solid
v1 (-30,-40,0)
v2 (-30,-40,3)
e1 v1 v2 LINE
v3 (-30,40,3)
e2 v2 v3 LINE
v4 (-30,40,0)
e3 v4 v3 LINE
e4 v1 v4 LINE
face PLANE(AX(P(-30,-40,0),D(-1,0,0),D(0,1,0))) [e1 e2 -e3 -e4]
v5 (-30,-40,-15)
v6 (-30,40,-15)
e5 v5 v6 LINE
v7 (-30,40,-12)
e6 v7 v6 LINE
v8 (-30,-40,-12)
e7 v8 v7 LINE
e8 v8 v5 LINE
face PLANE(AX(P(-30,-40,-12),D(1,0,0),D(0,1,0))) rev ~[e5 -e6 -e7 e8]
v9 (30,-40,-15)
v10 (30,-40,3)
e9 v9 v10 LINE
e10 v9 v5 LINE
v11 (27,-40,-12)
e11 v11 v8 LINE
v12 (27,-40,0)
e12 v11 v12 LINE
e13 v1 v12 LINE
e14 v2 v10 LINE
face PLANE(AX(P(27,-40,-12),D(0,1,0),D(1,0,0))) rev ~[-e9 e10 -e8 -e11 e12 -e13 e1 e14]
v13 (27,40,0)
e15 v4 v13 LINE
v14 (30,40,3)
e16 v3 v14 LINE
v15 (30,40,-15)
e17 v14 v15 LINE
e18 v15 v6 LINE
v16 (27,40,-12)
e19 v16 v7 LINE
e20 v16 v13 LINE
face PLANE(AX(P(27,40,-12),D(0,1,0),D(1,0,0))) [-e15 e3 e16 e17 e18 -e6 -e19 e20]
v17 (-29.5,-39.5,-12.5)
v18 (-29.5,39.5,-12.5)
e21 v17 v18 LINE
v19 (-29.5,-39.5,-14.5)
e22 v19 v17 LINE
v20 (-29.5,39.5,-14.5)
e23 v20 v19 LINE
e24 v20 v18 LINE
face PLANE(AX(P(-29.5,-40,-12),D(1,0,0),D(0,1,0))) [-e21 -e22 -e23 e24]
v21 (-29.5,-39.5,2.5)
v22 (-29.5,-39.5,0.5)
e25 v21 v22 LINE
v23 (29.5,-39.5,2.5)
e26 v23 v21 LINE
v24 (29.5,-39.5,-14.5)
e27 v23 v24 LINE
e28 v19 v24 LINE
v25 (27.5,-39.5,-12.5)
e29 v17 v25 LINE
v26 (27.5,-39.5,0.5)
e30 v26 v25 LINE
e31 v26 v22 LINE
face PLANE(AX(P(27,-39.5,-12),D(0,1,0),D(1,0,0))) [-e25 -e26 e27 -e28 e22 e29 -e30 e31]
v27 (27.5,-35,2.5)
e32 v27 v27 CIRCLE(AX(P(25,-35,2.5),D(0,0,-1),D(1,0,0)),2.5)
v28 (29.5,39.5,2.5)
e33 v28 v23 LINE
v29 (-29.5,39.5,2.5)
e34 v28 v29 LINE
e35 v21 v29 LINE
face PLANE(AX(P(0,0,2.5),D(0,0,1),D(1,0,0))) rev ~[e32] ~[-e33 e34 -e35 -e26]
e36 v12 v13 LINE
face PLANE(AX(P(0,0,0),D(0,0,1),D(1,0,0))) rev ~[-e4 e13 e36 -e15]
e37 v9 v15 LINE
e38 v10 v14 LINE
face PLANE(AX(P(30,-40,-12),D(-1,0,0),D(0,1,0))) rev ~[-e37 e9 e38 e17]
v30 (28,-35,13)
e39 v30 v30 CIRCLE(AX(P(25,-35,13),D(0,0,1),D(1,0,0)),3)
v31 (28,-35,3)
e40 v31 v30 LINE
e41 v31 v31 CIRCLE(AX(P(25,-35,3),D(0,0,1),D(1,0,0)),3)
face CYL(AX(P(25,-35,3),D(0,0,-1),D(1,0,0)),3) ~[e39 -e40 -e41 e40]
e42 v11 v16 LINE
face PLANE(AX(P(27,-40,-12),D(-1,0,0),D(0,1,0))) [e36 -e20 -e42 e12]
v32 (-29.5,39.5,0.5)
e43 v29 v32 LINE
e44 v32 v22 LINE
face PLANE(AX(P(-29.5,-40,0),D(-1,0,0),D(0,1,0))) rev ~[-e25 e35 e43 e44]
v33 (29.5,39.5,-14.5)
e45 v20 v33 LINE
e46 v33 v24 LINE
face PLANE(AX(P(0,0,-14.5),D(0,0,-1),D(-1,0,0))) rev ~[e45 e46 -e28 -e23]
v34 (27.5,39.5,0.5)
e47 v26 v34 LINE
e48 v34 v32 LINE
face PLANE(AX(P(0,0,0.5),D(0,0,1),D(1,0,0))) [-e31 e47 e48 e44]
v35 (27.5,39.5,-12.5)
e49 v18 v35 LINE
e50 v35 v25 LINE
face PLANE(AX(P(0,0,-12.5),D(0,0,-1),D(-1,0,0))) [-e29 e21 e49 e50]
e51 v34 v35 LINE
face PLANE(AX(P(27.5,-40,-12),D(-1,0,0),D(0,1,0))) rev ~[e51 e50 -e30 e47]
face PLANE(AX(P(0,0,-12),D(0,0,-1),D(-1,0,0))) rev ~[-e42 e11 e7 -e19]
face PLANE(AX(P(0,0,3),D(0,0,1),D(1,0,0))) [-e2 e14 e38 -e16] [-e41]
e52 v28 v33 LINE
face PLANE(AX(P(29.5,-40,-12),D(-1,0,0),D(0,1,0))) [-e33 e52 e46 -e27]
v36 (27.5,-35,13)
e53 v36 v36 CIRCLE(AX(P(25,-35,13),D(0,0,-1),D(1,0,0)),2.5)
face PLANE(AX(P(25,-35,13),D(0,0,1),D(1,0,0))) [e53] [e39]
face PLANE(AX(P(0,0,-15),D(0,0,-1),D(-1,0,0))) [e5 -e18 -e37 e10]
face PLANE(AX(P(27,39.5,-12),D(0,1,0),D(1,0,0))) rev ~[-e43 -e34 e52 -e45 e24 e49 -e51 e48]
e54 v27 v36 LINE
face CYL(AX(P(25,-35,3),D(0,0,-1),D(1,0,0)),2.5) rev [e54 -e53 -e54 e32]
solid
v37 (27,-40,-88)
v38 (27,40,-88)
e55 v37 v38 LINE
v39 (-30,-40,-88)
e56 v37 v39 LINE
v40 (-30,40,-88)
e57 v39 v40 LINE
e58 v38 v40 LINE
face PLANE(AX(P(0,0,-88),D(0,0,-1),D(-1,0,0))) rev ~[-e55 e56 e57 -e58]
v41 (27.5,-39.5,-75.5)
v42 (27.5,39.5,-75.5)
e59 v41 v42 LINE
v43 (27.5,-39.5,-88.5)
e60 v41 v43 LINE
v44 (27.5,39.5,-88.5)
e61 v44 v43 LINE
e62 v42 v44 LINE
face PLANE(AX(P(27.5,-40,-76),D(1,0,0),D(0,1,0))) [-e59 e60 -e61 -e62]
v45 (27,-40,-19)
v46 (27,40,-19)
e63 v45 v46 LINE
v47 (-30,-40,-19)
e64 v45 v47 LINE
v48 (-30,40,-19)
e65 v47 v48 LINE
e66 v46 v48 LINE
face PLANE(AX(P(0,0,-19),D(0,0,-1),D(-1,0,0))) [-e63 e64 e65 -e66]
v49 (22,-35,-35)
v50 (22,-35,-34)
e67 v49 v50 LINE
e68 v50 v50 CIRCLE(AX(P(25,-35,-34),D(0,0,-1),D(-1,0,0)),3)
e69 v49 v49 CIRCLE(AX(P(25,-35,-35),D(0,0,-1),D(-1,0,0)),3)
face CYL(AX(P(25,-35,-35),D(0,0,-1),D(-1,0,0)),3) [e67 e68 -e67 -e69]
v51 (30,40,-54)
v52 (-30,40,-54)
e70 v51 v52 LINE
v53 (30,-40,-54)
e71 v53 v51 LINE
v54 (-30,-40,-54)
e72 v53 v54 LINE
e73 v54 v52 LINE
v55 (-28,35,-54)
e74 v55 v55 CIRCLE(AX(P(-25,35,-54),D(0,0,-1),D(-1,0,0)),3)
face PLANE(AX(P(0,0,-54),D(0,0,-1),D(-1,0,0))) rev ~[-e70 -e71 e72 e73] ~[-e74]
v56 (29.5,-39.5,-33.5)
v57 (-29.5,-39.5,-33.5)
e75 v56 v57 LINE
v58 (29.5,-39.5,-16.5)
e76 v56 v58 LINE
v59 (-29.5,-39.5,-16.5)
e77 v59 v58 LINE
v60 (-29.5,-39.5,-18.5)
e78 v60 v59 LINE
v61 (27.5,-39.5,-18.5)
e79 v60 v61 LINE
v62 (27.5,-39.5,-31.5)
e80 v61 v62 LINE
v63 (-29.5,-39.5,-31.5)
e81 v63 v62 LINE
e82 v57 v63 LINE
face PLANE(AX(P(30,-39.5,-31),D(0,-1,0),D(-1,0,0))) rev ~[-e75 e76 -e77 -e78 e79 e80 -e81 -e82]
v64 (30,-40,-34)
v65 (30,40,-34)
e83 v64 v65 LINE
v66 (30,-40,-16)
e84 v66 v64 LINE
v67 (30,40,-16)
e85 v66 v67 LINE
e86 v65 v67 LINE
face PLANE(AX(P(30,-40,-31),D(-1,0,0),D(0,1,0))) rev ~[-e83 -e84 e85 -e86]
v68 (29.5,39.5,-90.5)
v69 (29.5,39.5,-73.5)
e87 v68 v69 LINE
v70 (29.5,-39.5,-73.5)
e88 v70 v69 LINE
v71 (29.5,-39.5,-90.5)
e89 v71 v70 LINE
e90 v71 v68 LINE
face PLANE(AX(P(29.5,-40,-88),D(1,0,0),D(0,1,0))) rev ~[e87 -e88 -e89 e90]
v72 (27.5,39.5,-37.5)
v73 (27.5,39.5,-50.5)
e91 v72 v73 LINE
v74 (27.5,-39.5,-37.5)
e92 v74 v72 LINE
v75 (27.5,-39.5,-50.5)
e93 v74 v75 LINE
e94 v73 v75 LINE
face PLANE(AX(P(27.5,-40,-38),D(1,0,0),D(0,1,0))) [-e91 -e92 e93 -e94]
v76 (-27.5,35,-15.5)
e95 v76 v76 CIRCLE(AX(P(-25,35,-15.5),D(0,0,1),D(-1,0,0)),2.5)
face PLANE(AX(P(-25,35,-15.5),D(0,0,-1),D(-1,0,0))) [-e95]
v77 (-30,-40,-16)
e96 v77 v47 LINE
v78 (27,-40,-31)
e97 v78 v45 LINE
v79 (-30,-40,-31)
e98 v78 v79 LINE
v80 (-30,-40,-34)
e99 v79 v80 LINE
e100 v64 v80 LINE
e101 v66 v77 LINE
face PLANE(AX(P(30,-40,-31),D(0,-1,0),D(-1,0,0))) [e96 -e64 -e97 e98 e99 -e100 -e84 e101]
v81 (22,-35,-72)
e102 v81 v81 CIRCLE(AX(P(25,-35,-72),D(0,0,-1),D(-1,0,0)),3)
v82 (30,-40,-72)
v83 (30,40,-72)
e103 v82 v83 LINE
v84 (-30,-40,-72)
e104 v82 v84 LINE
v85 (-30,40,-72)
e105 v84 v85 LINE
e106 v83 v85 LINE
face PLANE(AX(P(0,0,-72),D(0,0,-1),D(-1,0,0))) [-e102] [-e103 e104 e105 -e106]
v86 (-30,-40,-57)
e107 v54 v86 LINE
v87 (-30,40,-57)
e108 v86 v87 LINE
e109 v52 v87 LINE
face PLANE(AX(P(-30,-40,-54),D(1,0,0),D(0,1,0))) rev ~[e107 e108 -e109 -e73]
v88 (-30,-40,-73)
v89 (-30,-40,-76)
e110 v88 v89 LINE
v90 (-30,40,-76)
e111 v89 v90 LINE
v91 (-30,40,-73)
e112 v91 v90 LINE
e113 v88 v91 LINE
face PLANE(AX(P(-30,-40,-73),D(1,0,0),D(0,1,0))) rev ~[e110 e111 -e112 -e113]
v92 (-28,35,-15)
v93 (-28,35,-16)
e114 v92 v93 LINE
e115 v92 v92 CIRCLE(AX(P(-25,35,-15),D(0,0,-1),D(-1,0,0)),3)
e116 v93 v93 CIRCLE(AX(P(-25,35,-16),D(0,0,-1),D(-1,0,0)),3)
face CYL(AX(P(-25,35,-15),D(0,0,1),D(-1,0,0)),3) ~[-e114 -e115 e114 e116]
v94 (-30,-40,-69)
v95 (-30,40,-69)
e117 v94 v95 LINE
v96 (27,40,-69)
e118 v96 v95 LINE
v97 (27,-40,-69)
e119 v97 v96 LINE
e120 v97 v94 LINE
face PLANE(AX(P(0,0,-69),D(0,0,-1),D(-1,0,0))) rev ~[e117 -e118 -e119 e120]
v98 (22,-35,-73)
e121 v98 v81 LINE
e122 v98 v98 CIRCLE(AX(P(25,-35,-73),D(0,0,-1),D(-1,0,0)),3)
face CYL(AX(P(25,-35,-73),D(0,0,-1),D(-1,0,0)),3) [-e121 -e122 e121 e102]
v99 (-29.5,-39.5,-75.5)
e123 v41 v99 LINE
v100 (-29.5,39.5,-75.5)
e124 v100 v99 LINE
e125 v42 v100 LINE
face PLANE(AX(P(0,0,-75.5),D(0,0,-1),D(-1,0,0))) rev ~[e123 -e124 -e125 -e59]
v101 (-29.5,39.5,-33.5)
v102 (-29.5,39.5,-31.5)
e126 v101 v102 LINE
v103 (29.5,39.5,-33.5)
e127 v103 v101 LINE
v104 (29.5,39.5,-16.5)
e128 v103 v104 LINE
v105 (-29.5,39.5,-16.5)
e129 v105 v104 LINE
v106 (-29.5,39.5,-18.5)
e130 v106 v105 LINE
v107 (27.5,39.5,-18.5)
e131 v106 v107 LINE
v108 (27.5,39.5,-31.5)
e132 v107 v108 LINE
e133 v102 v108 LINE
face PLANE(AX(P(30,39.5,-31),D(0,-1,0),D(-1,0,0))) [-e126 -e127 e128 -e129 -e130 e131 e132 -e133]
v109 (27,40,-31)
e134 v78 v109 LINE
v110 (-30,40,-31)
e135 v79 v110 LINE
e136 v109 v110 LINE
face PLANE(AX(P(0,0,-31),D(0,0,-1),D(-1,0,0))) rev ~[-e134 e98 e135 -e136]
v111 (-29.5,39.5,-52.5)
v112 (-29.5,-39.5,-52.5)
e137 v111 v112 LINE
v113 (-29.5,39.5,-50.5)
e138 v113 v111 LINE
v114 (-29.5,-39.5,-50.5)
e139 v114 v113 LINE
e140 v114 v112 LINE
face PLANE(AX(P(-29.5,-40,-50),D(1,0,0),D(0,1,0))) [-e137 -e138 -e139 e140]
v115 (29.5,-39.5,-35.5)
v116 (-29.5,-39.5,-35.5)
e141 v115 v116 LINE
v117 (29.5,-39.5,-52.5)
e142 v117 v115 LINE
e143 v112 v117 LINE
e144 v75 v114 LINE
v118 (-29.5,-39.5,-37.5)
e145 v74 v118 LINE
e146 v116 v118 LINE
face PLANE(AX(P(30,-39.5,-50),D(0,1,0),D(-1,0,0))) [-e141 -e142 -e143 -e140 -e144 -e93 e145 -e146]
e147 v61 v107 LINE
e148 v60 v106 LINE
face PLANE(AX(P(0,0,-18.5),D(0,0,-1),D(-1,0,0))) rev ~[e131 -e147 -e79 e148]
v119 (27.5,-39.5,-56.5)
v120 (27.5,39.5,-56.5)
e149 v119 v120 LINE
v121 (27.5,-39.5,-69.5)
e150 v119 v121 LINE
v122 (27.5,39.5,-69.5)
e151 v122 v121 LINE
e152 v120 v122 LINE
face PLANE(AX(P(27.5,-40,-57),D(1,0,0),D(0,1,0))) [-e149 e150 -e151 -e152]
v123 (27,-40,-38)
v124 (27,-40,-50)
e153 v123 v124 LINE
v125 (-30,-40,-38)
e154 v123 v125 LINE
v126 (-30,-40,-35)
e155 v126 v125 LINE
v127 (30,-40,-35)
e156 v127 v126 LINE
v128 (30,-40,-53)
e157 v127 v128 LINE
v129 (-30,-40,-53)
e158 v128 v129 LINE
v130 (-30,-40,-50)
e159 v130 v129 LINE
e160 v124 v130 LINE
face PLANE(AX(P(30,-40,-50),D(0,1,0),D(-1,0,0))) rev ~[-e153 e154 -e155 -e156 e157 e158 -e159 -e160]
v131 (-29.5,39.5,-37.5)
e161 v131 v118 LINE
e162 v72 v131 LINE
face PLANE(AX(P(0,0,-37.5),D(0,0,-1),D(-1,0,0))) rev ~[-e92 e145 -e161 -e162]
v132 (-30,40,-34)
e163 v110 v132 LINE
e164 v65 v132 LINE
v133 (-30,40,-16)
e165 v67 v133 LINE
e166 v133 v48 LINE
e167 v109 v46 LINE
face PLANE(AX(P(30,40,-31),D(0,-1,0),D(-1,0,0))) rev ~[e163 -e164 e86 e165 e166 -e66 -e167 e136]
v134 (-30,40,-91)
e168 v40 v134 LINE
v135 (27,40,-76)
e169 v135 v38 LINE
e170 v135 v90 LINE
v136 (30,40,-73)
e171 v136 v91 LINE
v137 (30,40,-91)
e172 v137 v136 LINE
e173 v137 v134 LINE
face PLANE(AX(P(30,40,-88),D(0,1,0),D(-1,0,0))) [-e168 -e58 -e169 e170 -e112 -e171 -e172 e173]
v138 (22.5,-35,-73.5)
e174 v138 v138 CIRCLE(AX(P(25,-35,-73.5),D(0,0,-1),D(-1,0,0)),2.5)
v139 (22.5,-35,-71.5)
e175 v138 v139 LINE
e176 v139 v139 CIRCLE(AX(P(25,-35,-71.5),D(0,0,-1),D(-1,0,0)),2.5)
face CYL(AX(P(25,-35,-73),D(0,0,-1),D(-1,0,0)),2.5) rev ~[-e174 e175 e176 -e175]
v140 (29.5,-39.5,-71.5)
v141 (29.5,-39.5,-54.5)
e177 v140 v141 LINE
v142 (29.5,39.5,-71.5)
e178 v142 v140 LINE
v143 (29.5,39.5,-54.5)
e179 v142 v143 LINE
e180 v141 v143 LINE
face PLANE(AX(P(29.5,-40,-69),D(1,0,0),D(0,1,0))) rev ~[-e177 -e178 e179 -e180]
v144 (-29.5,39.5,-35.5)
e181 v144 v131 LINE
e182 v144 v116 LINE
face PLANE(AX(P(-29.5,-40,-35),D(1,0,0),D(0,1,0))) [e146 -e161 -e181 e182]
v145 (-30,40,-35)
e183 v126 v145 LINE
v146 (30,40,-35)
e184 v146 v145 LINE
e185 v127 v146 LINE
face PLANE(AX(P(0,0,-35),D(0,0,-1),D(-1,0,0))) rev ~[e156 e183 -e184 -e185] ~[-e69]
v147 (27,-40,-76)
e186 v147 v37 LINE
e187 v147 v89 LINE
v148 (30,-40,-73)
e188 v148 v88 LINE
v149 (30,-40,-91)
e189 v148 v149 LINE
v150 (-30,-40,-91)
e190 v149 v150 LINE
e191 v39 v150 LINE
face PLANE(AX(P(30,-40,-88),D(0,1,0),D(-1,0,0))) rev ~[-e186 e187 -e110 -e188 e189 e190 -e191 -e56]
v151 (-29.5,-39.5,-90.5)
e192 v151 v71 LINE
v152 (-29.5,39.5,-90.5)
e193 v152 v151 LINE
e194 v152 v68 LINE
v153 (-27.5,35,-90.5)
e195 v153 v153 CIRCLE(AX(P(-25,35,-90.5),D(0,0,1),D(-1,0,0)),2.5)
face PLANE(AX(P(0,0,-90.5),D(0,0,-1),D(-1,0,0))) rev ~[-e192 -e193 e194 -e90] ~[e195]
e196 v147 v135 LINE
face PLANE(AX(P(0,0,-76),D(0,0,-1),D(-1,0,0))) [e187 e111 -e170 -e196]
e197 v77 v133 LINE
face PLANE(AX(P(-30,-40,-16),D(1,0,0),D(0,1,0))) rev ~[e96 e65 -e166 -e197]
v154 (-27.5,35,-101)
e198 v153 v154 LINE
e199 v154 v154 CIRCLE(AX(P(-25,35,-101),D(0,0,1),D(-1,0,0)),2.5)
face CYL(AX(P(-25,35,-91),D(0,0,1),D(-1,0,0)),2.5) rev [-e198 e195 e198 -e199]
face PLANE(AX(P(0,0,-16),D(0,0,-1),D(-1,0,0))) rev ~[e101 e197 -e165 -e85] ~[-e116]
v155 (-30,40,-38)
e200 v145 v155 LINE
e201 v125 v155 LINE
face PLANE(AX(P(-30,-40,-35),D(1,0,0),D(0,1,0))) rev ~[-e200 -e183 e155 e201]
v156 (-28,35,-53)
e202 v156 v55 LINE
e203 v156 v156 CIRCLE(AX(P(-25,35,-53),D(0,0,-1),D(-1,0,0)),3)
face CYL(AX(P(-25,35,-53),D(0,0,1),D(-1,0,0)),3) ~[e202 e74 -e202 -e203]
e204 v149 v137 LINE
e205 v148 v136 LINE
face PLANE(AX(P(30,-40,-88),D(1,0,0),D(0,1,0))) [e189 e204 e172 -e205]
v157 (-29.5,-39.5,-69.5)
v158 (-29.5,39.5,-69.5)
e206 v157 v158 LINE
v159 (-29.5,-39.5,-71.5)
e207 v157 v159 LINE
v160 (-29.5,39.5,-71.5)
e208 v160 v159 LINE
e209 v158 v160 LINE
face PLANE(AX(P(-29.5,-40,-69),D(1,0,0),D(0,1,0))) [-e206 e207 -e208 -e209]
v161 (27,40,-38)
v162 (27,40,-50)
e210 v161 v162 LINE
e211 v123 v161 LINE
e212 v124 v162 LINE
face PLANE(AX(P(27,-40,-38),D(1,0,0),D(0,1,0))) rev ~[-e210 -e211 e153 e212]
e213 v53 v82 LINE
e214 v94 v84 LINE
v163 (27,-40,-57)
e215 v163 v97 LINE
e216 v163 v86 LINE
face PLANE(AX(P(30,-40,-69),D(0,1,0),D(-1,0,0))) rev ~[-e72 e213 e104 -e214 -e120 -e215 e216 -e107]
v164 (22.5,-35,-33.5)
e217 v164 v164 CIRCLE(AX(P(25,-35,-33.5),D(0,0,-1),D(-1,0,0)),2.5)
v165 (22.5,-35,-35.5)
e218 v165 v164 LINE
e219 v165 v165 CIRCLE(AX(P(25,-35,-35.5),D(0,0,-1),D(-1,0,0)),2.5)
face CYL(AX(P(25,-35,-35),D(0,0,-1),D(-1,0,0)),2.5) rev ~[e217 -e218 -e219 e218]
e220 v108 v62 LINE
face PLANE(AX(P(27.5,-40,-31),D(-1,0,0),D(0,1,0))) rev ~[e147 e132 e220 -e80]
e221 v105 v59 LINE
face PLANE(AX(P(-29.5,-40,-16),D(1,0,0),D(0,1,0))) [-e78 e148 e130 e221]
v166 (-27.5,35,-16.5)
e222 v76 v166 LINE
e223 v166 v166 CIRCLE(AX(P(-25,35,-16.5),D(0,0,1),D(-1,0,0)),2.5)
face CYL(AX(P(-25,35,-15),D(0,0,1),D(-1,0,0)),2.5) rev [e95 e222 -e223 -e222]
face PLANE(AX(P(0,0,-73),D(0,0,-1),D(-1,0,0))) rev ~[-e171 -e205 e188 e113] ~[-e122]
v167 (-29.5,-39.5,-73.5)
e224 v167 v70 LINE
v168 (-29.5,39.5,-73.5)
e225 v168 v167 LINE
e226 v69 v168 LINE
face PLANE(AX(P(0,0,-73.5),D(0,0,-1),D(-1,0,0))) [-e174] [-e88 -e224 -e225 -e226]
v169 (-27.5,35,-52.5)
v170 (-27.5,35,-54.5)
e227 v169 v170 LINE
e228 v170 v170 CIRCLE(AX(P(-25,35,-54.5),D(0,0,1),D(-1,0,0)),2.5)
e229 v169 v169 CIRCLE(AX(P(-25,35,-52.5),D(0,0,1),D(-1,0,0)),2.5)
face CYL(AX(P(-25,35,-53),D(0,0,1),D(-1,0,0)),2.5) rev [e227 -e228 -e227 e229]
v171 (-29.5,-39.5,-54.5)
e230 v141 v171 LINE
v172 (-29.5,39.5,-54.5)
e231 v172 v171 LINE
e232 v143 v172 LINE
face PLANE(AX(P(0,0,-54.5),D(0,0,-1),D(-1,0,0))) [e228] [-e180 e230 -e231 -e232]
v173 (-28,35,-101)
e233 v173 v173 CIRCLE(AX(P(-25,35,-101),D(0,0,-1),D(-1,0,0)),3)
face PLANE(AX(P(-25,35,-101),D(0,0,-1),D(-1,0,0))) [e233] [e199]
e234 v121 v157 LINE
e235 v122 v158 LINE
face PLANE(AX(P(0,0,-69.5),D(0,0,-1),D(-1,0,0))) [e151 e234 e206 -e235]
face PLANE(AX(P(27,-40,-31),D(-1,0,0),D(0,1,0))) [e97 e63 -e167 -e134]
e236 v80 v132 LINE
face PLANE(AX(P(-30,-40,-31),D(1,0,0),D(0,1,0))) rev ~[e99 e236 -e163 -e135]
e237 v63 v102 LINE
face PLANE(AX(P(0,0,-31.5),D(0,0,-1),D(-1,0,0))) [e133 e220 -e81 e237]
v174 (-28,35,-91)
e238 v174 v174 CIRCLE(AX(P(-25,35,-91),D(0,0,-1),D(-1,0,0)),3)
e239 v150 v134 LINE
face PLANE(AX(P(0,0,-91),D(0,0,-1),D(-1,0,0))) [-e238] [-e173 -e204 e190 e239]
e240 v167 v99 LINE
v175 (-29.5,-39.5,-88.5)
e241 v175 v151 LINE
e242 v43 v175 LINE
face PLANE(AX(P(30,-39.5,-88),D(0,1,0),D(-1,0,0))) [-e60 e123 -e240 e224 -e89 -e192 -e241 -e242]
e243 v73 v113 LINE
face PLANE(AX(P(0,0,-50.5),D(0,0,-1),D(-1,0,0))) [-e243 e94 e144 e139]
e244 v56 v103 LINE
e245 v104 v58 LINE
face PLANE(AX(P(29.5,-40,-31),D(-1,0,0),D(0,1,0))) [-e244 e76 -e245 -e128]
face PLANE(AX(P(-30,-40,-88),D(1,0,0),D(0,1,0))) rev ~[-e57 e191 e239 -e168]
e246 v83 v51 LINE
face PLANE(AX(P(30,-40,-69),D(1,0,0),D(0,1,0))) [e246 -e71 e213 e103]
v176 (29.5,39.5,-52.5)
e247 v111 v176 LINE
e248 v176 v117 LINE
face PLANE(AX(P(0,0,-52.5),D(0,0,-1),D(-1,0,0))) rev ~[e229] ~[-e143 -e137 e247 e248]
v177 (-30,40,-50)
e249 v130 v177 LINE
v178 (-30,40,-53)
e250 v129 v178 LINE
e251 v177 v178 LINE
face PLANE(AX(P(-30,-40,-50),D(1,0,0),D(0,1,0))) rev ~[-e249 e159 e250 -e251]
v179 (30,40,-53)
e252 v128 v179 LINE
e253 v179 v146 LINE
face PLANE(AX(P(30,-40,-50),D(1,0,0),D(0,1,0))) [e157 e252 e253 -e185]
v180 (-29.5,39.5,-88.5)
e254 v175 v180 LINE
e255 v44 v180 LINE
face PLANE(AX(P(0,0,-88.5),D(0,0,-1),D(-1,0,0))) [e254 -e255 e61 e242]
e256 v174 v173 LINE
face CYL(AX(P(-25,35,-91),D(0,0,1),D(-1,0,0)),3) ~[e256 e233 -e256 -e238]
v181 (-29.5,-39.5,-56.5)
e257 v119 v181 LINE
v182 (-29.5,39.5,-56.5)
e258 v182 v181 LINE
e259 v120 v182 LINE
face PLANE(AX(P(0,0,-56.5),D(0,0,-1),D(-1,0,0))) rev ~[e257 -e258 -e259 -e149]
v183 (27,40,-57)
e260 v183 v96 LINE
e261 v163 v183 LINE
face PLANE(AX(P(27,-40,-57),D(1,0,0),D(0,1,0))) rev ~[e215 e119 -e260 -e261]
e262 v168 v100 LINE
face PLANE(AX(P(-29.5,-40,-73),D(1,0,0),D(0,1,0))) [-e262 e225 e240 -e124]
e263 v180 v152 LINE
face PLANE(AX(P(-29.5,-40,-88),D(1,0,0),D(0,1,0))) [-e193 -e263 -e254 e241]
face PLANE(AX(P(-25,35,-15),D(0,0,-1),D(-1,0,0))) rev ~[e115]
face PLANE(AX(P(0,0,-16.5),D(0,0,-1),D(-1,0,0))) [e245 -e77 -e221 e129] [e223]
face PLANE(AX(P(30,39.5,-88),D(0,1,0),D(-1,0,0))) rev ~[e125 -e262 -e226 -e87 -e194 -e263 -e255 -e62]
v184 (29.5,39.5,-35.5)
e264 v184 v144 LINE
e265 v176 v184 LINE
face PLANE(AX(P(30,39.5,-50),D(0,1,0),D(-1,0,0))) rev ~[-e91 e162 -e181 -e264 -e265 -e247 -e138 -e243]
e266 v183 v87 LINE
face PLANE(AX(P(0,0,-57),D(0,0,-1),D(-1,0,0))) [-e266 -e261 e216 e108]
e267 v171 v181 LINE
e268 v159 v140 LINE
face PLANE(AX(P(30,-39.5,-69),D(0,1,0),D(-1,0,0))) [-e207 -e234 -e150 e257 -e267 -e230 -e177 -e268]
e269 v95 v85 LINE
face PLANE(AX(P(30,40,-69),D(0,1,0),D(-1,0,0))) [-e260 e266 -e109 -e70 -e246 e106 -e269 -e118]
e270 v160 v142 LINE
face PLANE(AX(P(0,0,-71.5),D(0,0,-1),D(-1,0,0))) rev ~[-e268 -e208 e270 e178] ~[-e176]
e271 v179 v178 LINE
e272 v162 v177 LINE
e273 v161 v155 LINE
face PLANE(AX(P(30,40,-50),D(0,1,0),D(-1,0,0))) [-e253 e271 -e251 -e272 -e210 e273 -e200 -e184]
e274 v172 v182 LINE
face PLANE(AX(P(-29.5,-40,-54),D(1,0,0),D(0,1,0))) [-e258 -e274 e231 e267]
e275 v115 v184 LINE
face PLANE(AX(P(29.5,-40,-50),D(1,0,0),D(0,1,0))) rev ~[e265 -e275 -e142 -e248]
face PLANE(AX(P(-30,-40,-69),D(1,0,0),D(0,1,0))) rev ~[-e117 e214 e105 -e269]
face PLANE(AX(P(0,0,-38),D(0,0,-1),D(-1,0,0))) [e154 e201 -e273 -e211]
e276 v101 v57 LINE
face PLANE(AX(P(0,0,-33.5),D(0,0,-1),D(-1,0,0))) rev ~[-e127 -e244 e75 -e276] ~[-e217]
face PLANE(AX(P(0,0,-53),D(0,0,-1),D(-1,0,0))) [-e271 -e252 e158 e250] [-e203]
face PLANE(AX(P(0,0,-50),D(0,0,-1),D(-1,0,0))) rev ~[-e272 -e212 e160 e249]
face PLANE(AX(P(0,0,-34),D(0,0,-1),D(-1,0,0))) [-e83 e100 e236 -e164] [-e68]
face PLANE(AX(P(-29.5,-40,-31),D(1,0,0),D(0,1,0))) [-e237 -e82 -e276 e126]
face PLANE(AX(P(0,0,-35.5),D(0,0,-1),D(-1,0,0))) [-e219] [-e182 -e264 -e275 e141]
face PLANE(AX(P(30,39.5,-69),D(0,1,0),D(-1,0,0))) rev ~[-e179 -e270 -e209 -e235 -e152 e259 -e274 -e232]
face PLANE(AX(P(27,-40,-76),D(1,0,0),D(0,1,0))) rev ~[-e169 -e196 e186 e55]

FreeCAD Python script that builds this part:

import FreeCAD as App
import Part
import Sketcher
from FreeCAD import Vector
Q = App.Units.Quantity


def faces_at(feature, points):
    """Names of the faces that lie closest to the given points."""
    faces = feature.Shape.Faces
    near = lambda p: min(range(len(faces)), key=lambda i: faces[i].distToShape(Part.Vertex(*p))[0])
    return sorted({f"Face{near(p) + 1}" for p in points})


def add_polygon(sketch, points):
    """Adds a closed chain of lines whose ends are joined by coincident constraints."""
    first, n = sketch.GeometryCount, len(points)
    for a, b in zip(points, points[1:] + points[:1]):
        sketch.addGeometry(Part.LineSegment(App.Vector(*a, 0), App.Vector(*b, 0)), False)
    for i in range(n):
        sketch.addConstraint(Sketcher.Constraint("Coincident", first + i, 2, first + (i + 1) % n, 1))

doc = App.newDocument("Part")
params = doc.addObject("Spreadsheet::Sheet", "Params")
for row, (alias, value) in enumerate([
    ("sketch1_width", "60 mm"),
    ("sketch1_height", "80 mm"),
    ("pad1_length", "3 mm"),
    ("sketch2_diameter", "6 mm"),
    ("pad2_length", "10 mm"),
    ("sketch3_width", "60 mm"),
    ("sketch3_height", "80 mm"),
    ("pad3_length", "3 mm"),
    ("sketch4_diameter", "6 mm"),
    ("pad4_length", "1 mm"),
    ("sketch5_width", "60 mm"),
    ("sketch5_height", "80 mm"),
    ("pad5_length", "3 mm"),
    ("sketch6_width", "3 mm"),
    ("sketch6_height", "80 mm"),
    ("pad6_length", "12 mm"),
    ("thickness_wall", "0.5 mm"),
    ("sketch7_width", "60 mm"),
    ("sketch7_height", "80 mm"),
    ("pad7_length", "3 mm"),
    ("sketch8_width", "3 mm"),
    ("sketch8_height", "80 mm"),
    ("pad8_length", "12 mm"),
    ("sketch9_diameter", "6 mm"),
    ("pad9_length", "1 mm"),
    ("sketch10_width", "60 mm"),
    ("sketch10_height", "80 mm"),
    ("pad10_length", "3 mm"),
    ("sketch11_width", "3 mm"),
    ("sketch11_height", "80 mm"),
    ("pad11_length", "12 mm"),
    ("sketch12_width", "60 mm"),
    ("sketch12_height", "80 mm"),
    ("pad12_length", "3 mm"),
    ("sketch13_diameter", "6 mm"),
    ("pad13_length", "1 mm"),
    ("sketch14_width", "60 mm"),
    ("sketch14_height", "80 mm"),
    ("pad14_length", "3 mm"),
    ("sketch15_width", "3 mm"),
    ("sketch15_height", "80 mm"),
    ("pad15_length", "12 mm"),
    ("sketch16_width", "60 mm"),
    ("sketch16_height", "80 mm"),
    ("pad16_length", "3 mm"),
    ("sketch17_diameter", "6 mm"),
    ("pad17_length", "1 mm"),
    ("sketch18_width", "60 mm"),
    ("sketch18_height", "80 mm"),
    ("pad18_length", "3 mm"),
    ("sketch19_width", "3 mm"),
    ("sketch19_height", "80 mm"),
    ("pad19_length", "12 mm"),
    ("sketch20_width", "60 mm"),
    ("sketch20_height", "80 mm"),
    ("pad20_length", "3 mm"),
    ("sketch21_diameter", "6 mm"),
    ("pad21_length", "10 mm"),
    ("thickness2_wall", "0.5 mm"),
], start=1):
    params.set(f"A{row}", alias)
    params.set(f"B{row}", "=" + value)
    params.setAlias(f"B{row}", alias)

body = doc.addObject("PartDesign::Body", "Body")

# Sketch on XY plane
sketch1 = body.newObject("Sketcher::SketchObject", "Sketch")
sketch1.AttachmentSupport = (doc.getObject("XY_Plane"), [""])
sketch1.MapMode = "FlatFace"
add_polygon(sketch1, [(-30, 40), (-30, -40), (30, -40), (30, 40)])  # lines 0-3
sketch1.addConstraint([
    Sketcher.Constraint("Vertical", 0),
    Sketcher.Constraint("Horizontal", 1),
    Sketcher.Constraint("Vertical", 2),
    Sketcher.Constraint("Horizontal", 3),
    Sketcher.Constraint("Symmetric", 0, 2, 2, 2, -1, 1),
    Sketcher.Constraint("DistanceX", 1, 1, 1, 2, Q("60 mm")),
    Sketcher.Constraint("DistanceY", 0, 2, 0, 1, Q("80 mm")),
])
sketch1.setExpression("Constraints[9]", "Params.sketch1_width")
sketch1.setExpression("Constraints[10]", "Params.sketch1_height")
pad1 = body.newObject("PartDesign::Pad", "Pad")
pad1.Profile = sketch1
pad1.setExpression("Length", "Params.pad1_length")

# Sketch on XY plane
sketch2 = body.newObject("Sketcher::SketchObject", "Sketch001")
sketch2.AttachmentSupport = (doc.getObject("XY_Plane"), [""])
sketch2.MapMode = "FlatFace"
sketch2.AttachmentOffset = App.Placement(Vector(0, 0, 3), App.Rotation())
sketch2.addGeometry(Part.Circle(Vector(25, -35, 0), Vector(0, 0, 1), 3), False)
sketch2.addConstraint([
    Sketcher.Constraint("Diameter", 0, Q("6 mm")),
    Sketcher.Constraint("DistanceX", -1, 1, 0, 3, Q("25 mm")),
    Sketcher.Constraint("DistanceY", 0, 3, -1, 1, Q("35 mm")),
])
sketch2.setExpression("Constraints[0]", "Params.sketch2_diameter")
pad2 = body.newObject("PartDesign::Pad", "Pad001")
pad2.Profile = sketch2
pad2.setExpression("Length", "Params.pad2_length")
body2 = doc.addObject("PartDesign::Body", "Body001")

# Sketch on XY plane
sketch3 = body2.newObject("Sketcher::SketchObject", "Sketch002")
sketch3.AttachmentSupport = (doc.getObject("XY_Plane001"), [""])
sketch3.MapMode = "FlatFace"
sketch3.AttachmentOffset = App.Placement(Vector(0, 0, -12), App.Rotation())
add_polygon(sketch3, [(30, 40), (30, -40), (-30, -40), (-30, 40)])  # lines 0-3
sketch3.addConstraint([
    Sketcher.Constraint("Vertical", 0),
    Sketcher.Constraint("Horizontal", 1),
    Sketcher.Constraint("Vertical", 2),
    Sketcher.Constraint("Horizontal", 3),
    Sketcher.Constraint("Symmetric", 0, 2, 2, 2, -1, 1),
    Sketcher.Constraint("DistanceX", 1, 2, 1, 1, Q("60 mm")),
    Sketcher.Constraint("DistanceY", 0, 2, 0, 1, Q("80 mm")),
])
sketch3.setExpression("Constraints[9]", "Params.sketch3_width")
sketch3.setExpression("Constraints[10]", "Params.sketch3_height")
pad3 = body2.newObject("PartDesign::Pad", "Pad002")
pad3.Profile = sketch3
pad3.setExpression("Length", "Params.pad3_length")
pad3.Reversed = True
body3 = doc.addObject("PartDesign::Body", "Body002")

# Sketch on XY plane
sketch4 = body3.newObject("Sketcher::SketchObject", "Sketch003")
sketch4.AttachmentSupport = (doc.getObject("XY_Plane002"), [""])
sketch4.MapMode = "FlatFace"
sketch4.AttachmentOffset = App.Placement(Vector(0, 0, -15), App.Rotation())
sketch4.addGeometry(Part.Circle(Vector(-25, 35, 0), Vector(0, 0, 1), 3), False)
sketch4.addConstraint([
    Sketcher.Constraint("Diameter", 0, Q("6 mm")),
    Sketcher.Constraint("DistanceX", 0, 3, -1, 1, Q("25 mm")),
    Sketcher.Constraint("DistanceY", -1, 1, 0, 3, Q("35 mm")),
])
sketch4.setExpression("Constraints[0]", "Params.sketch4_diameter")
pad4 = body3.newObject("PartDesign::Pad", "Pad003")
pad4.Profile = sketch4
pad4.setExpression("Length", "Params.pad4_length")
pad4.Reversed = True

# Sketch on XY plane
sketch5 = body3.newObject("Sketcher::SketchObject", "Sketch004")
sketch5.AttachmentSupport = (doc.getObject("XY_Plane002"), [""])
sketch5.MapMode = "FlatFace"
sketch5.AttachmentOffset = App.Placement(Vector(0, 0, -16), App.Rotation())
add_polygon(sketch5, [(30, 40), (30, -40), (-30, -40), (-30, 40)])  # lines 0-3
sketch5.addConstraint([
    Sketcher.Constraint("Vertical", 0),
    Sketcher.Constraint("Horizontal", 1),
    Sketcher.Constraint("Vertical", 2),
    Sketcher.Constraint("Horizontal", 3),
    Sketcher.Constraint("Symmetric", 0, 2, 2, 2, -1, 1),
    Sketcher.Constraint("DistanceX", 1, 2, 1, 1, Q("60 mm")),
    Sketcher.Constraint("DistanceY", 0, 2, 0, 1, Q("80 mm")),
])
sketch5.setExpression("Constraints[9]", "Params.sketch5_width")
sketch5.setExpression("Constraints[10]", "Params.sketch5_height")
pad5 = body3.newObject("PartDesign::Pad", "Pad004")
pad5.Profile = sketch5
pad5.setExpression("Length", "Params.pad5_length")
pad5.Reversed = True
body.AllowCompound = True
doc.recompute()

boolean = body.newObject("PartDesign::Boolean", "Boolean")
boolean.Type = "Fuse"
boolean.addObjects([body2])

# Sketch on XY plane
sketch6 = body.newObject("Sketcher::SketchObject", "Sketch005")
sketch6.AttachmentSupport = (doc.getObject("XY_Plane"), [""])
sketch6.MapMode = "FlatFace"
sketch6.AttachmentOffset = App.Placement(Vector(0, 0, -12), App.Rotation())
add_polygon(sketch6, [(27, 40), (27, -40), (30, -40), (30, 40)])  # lines 0-3
sketch6.addConstraint([
    Sketcher.Constraint("Vertical", 0),
    Sketcher.Constraint("Horizontal", 1),
    Sketcher.Constraint("Vertical", 2),
    Sketcher.Constraint("Horizontal", 3),
    Sketcher.Constraint("DistanceX", 1, 1, 1, 2, Q("3 mm")),
    Sketcher.Constraint("DistanceY", 0, 2, 0, 1, Q("80 mm")),
    Sketcher.Constraint("DistanceX", -1, 1, 0, 2, Q("27 mm")),
    Sketcher.Constraint("DistanceY", 0, 2, -1, 1, Q("40 mm")),
])
sketch6.setExpression("Constraints[8]", "Params.sketch6_width")
sketch6.setExpression("Constraints[9]", "Params.sketch6_height")
pad6 = body.newObject("PartDesign::Pad", "Pad005")
pad6.Profile = sketch6
pad6.setExpression("Length", "Params.pad6_length")
doc.recompute()

thickness = body.newObject("PartDesign::Thickness", "Thickness")
thickness.Base = (pad6, faces_at(pad6, [(25, -35, 13)]))
thickness.setExpression("Value", "Params.thickness_wall")
thickness.Reversed = True
thickness.Join = "Intersection"
body4 = doc.addObject("PartDesign::Body", "Body003")

# Sketch on XY plane
sketch7 = body4.newObject("Sketcher::SketchObject", "Sketch006")
sketch7.AttachmentSupport = (doc.getObject("XY_Plane003"), [""])
sketch7.MapMode = "FlatFace"
sketch7.AttachmentOffset = App.Placement(Vector(0, 0, -31), App.Rotation())
add_polygon(sketch7, [(30, 40), (30, -40), (-30, -40), (-30, 40)])  # lines 0-3
sketch7.addConstraint([
    Sketcher.Constraint("Vertical", 0),
    Sketcher.Constraint("Horizontal", 1),
    Sketcher.Constraint("Vertical", 2),
    Sketcher.Constraint("Horizontal", 3),
    Sketcher.Constraint("Symmetric", 0, 2, 2, 2, -1, 1),
    Sketcher.Constraint("DistanceX", 1, 2, 1, 1, Q("60 mm")),
    Sketcher.Constraint("DistanceY", 0, 2, 0, 1, Q("80 mm")),
])
sketch7.setExpression("Constraints[9]", "Params.sketch7_width")
sketch7.setExpression("Constraints[10]", "Params.sketch7_height")
pad7 = body4.newObject("PartDesign::Pad", "Pad006")
pad7.Profile = sketch7
pad7.setExpression("Length", "Params.pad7_length")
pad7.Reversed = True
body3.AllowCompound = True
doc.recompute()

boolean2 = body3.newObject("PartDesign::Boolean", "Boolean001")
boolean2.Type = "Fuse"
boolean2.addObjects([body4])

# Sketch on XY plane
sketch8 = body3.newObject("Sketcher::SketchObject", "Sketch007")
sketch8.AttachmentSupport = (doc.getObject("XY_Plane002"), [""])
sketch8.MapMode = "FlatFace"
sketch8.AttachmentOffset = App.Placement(Vector(0, 0, -31), App.Rotation())
add_polygon(sketch8, [(30, 40), (30, -40), (27, -40), (27, 40)])  # lines 0-3
sketch8.addConstraint([
    Sketcher.Constraint("Vertical", 0),
    Sketcher.Constraint("Horizontal", 1),
    Sketcher.Constraint("Vertical", 2),
    Sketcher.Constraint("Horizontal", 3),
    Sketcher.Constraint("DistanceX", 1, 2, 1, 1, Q("3 mm")),
    Sketcher.Constraint("DistanceY", 0, 2, 0, 1, Q("80 mm")),
    Sketcher.Constraint("DistanceX", -1, 1, 0, 2, Q("30 mm")),
    Sketcher.Constraint("DistanceY", 0, 2, -1, 1, Q("40 mm")),
])
sketch8.setExpression("Constraints[8]", "Params.sketch8_width")
sketch8.setExpression("Constraints[9]", "Params.sketch8_height")
pad8 = body3.newObject("PartDesign::Pad", "Pad007")
pad8.Profile = sketch8
pad8.setExpression("Length", "Params.pad8_length")

# Sketch on XY plane
sketch9 = body3.newObject("Sketcher::SketchObject", "Sketch008")
sketch9.AttachmentSupport = (doc.getObject("XY_Plane002"), [""])
sketch9.MapMode = "FlatFace"
sketch9.AttachmentOffset = App.Placement(Vector(0, 0, -35), App.Rotation())
sketch9.addGeometry(Part.Circle(Vector(25, -35, 0), Vector(0, 0, 1), 3), False)
sketch9.addConstraint([
    Sketcher.Constraint("Diameter", 0, Q("6 mm")),
    Sketcher.Constraint("DistanceX", -1, 1, 0, 3, Q("25 mm")),
    Sketcher.Constraint("DistanceY", 0, 3, -1, 1, Q("35 mm")),
])
sketch9.setExpression("Constraints[0]", "Params.sketch9_diameter")
pad9 = body3.newObject("PartDesign::Pad", "Pad008")
pad9.Profile = sketch9
pad9.setExpression("Length", "Params.pad9_length")

# Sketch on XY plane
sketch10 = body3.newObject("Sketcher::SketchObject", "Sketch009")
sketch10.AttachmentSupport = (doc.getObject("XY_Plane002"), [""])
sketch10.MapMode = "FlatFace"
sketch10.AttachmentOffset = App.Placement(Vector(0, 0, -35), App.Rotation())
add_polygon(sketch10, [(30, 40), (30, -40), (-30, -40), (-30, 40)])  # lines 0-3
sketch10.addConstraint([
    Sketcher.Constraint("Vertical", 0),
    Sketcher.Constraint("Horizontal", 1),
    Sketcher.Constraint("Vertical", 2),
    Sketcher.Constraint("Horizontal", 3),
    Sketcher.Constraint("Symmetric", 0, 2, 2, 2, -1, 1),
    Sketcher.Constraint("DistanceX", 1, 2, 1, 1, Q("60 mm")),
    Sketcher.Constraint("DistanceY", 0, 2, 0, 1, Q("80 mm")),
])
sketch10.setExpression("Constraints[9]", "Params.sketch10_width")
sketch10.setExpression("Constraints[10]", "Params.sketch10_height")
pad10 = body3.newObject("PartDesign::Pad", "Pad009")
pad10.Profile = sketch10
pad10.setExpression("Length", "Params.pad10_length")
pad10.Reversed = True

# Sketch on XY plane
sketch11 = body3.newObject("Sketcher::SketchObject", "Sketch010")
sketch11.AttachmentSupport = (doc.getObject("XY_Plane002"), [""])
sketch11.MapMode = "FlatFace"
sketch11.AttachmentOffset = App.Placement(Vector(0, 0, -38), App.Rotation())
add_polygon(sketch11, [(30, 40), (30, -40), (27, -40), (27, 40)])  # lines 0-3
sketch11.addConstraint([
    Sketcher.Constraint("Vertical", 0),
    Sketcher.Constraint("Horizontal", 1),
    Sketcher.Constraint("Vertical", 2),
    Sketcher.Constraint("Horizontal", 3),
    Sketcher.Constraint("DistanceX", 1, 2, 1, 1, Q("3 mm")),
    Sketcher.Constraint("DistanceY", 0, 2, 0, 1, Q("80 mm")),
    Sketcher.Constraint("DistanceX", -1, 1, 0, 2, Q("30 mm")),
    Sketcher.Constraint("DistanceY", 0, 2, -1, 1, Q("40 mm")),
])
sketch11.setExpression("Constraints[8]", "Params.sketch11_width")
sketch11.setExpression("Constraints[9]", "Params.sketch11_height")
pad11 = body3.newObject("PartDesign::Pad", "Pad010")
pad11.Profile = sketch11
pad11.setExpression("Length", "Params.pad11_length")
pad11.Reversed = True

# Sketch on XY plane
sketch12 = body3.newObject("Sketcher::SketchObject", "Sketch011")
sketch12.AttachmentSupport = (doc.getObject("XY_Plane002"), [""])
sketch12.MapMode = "FlatFace"
sketch12.AttachmentOffset = App.Placement(Vector(0, 0, -50), App.Rotation())
add_polygon(sketch12, [(30, 40), (30, -40), (-30, -40), (-30, 40)])  # lines 0-3
sketch12.addConstraint([
    Sketcher.Constraint("Vertical", 0),
    Sketcher.Constraint("Horizontal", 1),
    Sketcher.Constraint("Vertical", 2),
    Sketcher.Constraint("Horizontal", 3),
    Sketcher.Constraint("Symmetric", 0, 2, 2, 2, -1, 1),
    Sketcher.Constraint("DistanceX", 1, 2, 1, 1, Q("60 mm")),
    Sketcher.Constraint("DistanceY", 0, 2, 0, 1, Q("80 mm")),
])
sketch12.setExpression("Constraints[9]", "Params.sketch12_width")
sketch12.setExpression("Constraints[10]", "Params.sketch12_height")
pad12 = body3.newObject("PartDesign::Pad", "Pad011")
pad12.Profile = sketch12
pad12.setExpression("Length", "Params.pad12_length")
pad12.Reversed = True

# Sketch on XY plane
sketch13 = body3.newObject("Sketcher::SketchObject", "Sketch012")
sketch13.AttachmentSupport = (doc.getObject("XY_Plane002"), [""])
sketch13.MapMode = "FlatFace"
sketch13.AttachmentOffset = App.Placement(Vector(0, 0, -53), App.Rotation())
sketch13.addGeometry(Part.Circle(Vector(-25, 35, 0), Vector(0, 0, 1), 3), False)
sketch13.addConstraint([
    Sketcher.Constraint("Diameter", 0, Q("6 mm")),
    Sketcher.Constraint("DistanceX", 0, 3, -1, 1, Q("25 mm")),
    Sketcher.Constraint("DistanceY", -1, 1, 0, 3, Q("35 mm")),
])
sketch13.setExpression("Constraints[0]", "Params.sketch13_diameter")
pad13 = body3.newObject("PartDesign::Pad", "Pad012")
pad13.Profile = sketch13
pad13.setExpression("Length", "Params.pad13_length")
pad13.Reversed = True

# Sketch on XY plane
sketch14 = body3.newObject("Sketcher::SketchObject", "Sketch013")
sketch14.AttachmentSupport = (doc.getObject("XY_Plane002"), [""])
sketch14.MapMode = "FlatFace"
sketch14.AttachmentOffset = App.Placement(Vector(0, 0, -54), App.Rotation())
add_polygon(sketch14, [(30, 40), (30, -40), (-30, -40), (-30, 40)])  # lines 0-3
sketch14.addConstraint([
    Sketcher.Constraint("Vertical", 0),
    Sketcher.Constraint("Horizontal", 1),
    Sketcher.Constraint("Vertical", 2),
    Sketcher.Constraint("Horizontal", 3),
    Sketcher.Constraint("Symmetric", 0, 2, 2, 2, -1, 1),
    Sketcher.Constraint("DistanceX", 1, 2, 1, 1, Q("60 mm")),
    Sketcher.Constraint("DistanceY", 0, 2, 0, 1, Q("80 mm")),
])
sketch14.setExpression("Constraints[9]", "Params.sketch14_width")
sketch14.setExpression("Constraints[10]", "Params.sketch14_height")
pad14 = body3.newObject("PartDesign::Pad", "Pad013")
pad14.Profile = sketch14
pad14.setExpression("Length", "Params.pad14_length")
pad14.Reversed = True

# Sketch on XY plane
sketch15 = body3.newObject("Sketcher::SketchObject", "Sketch014")
sketch15.AttachmentSupport = (doc.getObject("XY_Plane002"), [""])
sketch15.MapMode = "FlatFace"
sketch15.AttachmentOffset = App.Placement(Vector(0, 0, -57), App.Rotation())
add_polygon(sketch15, [(30, 40), (30, -40), (27, -40), (27, 40)])  # lines 0-3
sketch15.addConstraint([
    Sketcher.Constraint("Vertical", 0),
    Sketcher.Constraint("Horizontal", 1),
    Sketcher.Constraint("Vertical", 2),
    Sketcher.Constraint("Horizontal", 3),
    Sketcher.Constraint("DistanceX", 1, 2, 1, 1, Q("3 mm")),
    Sketcher.Constraint("DistanceY", 0, 2, 0, 1, Q("80 mm")),
    Sketcher.Constraint("DistanceX", -1, 1, 0, 2, Q("30 mm")),
    Sketcher.Constraint("DistanceY", 0, 2, -1, 1, Q("40 mm")),
])
sketch15.setExpression("Constraints[8]", "Params.sketch15_width")
sketch15.setExpression("Constraints[9]", "Params.sketch15_height")
pad15 = body3.newObject("PartDesign::Pad", "Pad014")
pad15.Profile = sketch15
pad15.setExpression("Length", "Params.pad15_length")
pad15.Reversed = True

# Sketch on XY plane
sketch16 = body3.newObject("Sketcher::SketchObject", "Sketch015")
sketch16.AttachmentSupport = (doc.getObject("XY_Plane002"), [""])
sketch16.MapMode = "FlatFace"
sketch16.AttachmentOffset = App.Placement(Vector(0, 0, -69), App.Rotation())
add_polygon(sketch16, [(30, 40), (30, -40), (-30, -40), (-30, 40)])  # lines 0-3
sketch16.addConstraint([
    Sketcher.Constraint("Vertical", 0),
    Sketcher.Constraint("Horizontal", 1),
    Sketcher.Constraint("Vertical", 2),
    Sketcher.Constraint("Horizontal", 3),
    Sketcher.Constraint("Symmetric", 0, 2, 2, 2, -1, 1),
    Sketcher.Constraint("DistanceX", 1, 2, 1, 1, Q("60 mm")),
    Sketcher.Constraint("DistanceY", 0, 2, 0, 1, Q("80 mm")),
])
sketch16.setExpression("Constraints[9]", "Params.sketch16_width")
sketch16.setExpression("Constraints[10]", "Params.sketch16_height")
pad16 = body3.newObject("PartDesign::Pad", "Pad015")
pad16.Profile = sketch16
pad16.setExpression("Length", "Params.pad16_length")
pad16.Reversed = True

# Sketch on XY plane
sketch17 = body3.newObject("Sketcher::SketchObject", "Sketch016")
sketch17.AttachmentSupport = (doc.getObject("XY_Plane002"), [""])
sketch17.MapMode = "FlatFace"
sketch17.AttachmentOffset = App.Placement(Vector(0, 0, -73), App.Rotation())
sketch17.addGeometry(Part.Circle(Vector(25, -35, 0), Vector(0, 0, 1), 3), False)
sketch17.addConstraint([
    Sketcher.Constraint("Diameter", 0, Q("6 mm")),
    Sketcher.Constraint("DistanceX", -1, 1, 0, 3, Q("25 mm")),
    Sketcher.Constraint("DistanceY", 0, 3, -1, 1, Q("35 mm")),
])
sketch17.setExpression("Constraints[0]", "Params.sketch17_diameter")
pad17 = body3.newObject("PartDesign::Pad", "Pad016")
pad17.Profile = sketch17
pad17.setExpression("Length", "Params.pad17_length")

# Sketch on XY plane
sketch18 = body3.newObject("Sketcher::SketchObject", "Sketch017")
sketch18.AttachmentSupport = (doc.getObject("XY_Plane002"), [""])
sketch18.MapMode = "FlatFace"
sketch18.AttachmentOffset = App.Placement(Vector(0, 0, -73), App.Rotation())
add_polygon(sketch18, [(30, 40), (30, -40), (-30, -40), (-30, 40)])  # lines 0-3
sketch18.addConstraint([
    Sketcher.Constraint("Vertical", 0),
    Sketcher.Constraint("Horizontal", 1),
    Sketcher.Constraint("Vertical", 2),
    Sketcher.Constraint("Horizontal", 3),
    Sketcher.Constraint("Symmetric", 0, 2, 2, 2, -1, 1),
    Sketcher.Constraint("DistanceX", 1, 2, 1, 1, Q("60 mm")),
    Sketcher.Constraint("DistanceY", 0, 2, 0, 1, Q("80 mm")),
])
sketch18.setExpression("Constraints[9]", "Params.sketch18_width")
sketch18.setExpression("Constraints[10]", "Params.sketch18_height")
pad18 = body3.newObject("PartDesign::Pad", "Pad017")
pad18.Profile = sketch18
pad18.setExpression("Length", "Params.pad18_length")
pad18.Reversed = True

# Sketch on XY plane
sketch19 = body3.newObject("Sketcher::SketchObject", "Sketch018")
sketch19.AttachmentSupport = (doc.getObject("XY_Plane002"), [""])
sketch19.MapMode = "FlatFace"
sketch19.AttachmentOffset = App.Placement(Vector(0, 0, -76), App.Rotation())
add_polygon(sketch19, [(30, 40), (30, -40), (27, -40), (27, 40)])  # lines 0-3
sketch19.addConstraint([
    Sketcher.Constraint("Vertical", 0),
    Sketcher.Constraint("Horizontal", 1),
    Sketcher.Constraint("Vertical", 2),
    Sketcher.Constraint("Horizontal", 3),
    Sketcher.Constraint("DistanceX", 1, 2, 1, 1, Q("3 mm")),
    Sketcher.Constraint("DistanceY", 0, 2, 0, 1, Q("80 mm")),
    Sketcher.Constraint("DistanceX", -1, 1, 0, 2, Q("30 mm")),
    Sketcher.Constraint("DistanceY", 0, 2, -1, 1, Q("40 mm")),
])
sketch19.setExpression("Constraints[8]", "Params.sketch19_width")
sketch19.setExpression("Constraints[9]", "Params.sketch19_height")
pad19 = body3.newObject("PartDesign::Pad", "Pad018")
pad19.Profile = sketch19
pad19.setExpression("Length", "Params.pad19_length")
pad19.Reversed = True

# Sketch on XY plane
sketch20 = body3.newObject("Sketcher::SketchObject", "Sketch019")
sketch20.AttachmentSupport = (doc.getObject("XY_Plane002"), [""])
sketch20.MapMode = "FlatFace"
sketch20.AttachmentOffset = App.Placement(Vector(0, 0, -88), App.Rotation())
add_polygon(sketch20, [(30, 40), (30, -40), (-30, -40), (-30, 40)])  # lines 0-3
sketch20.addConstraint([
    Sketcher.Constraint("Vertical", 0),
    Sketcher.Constraint("Horizontal", 1),
    Sketcher.Constraint("Vertical", 2),
    Sketcher.Constraint("Horizontal", 3),
    Sketcher.Constraint("Symmetric", 0, 2, 2, 2, -1, 1),
    Sketcher.Constraint("DistanceX", 1, 2, 1, 1, Q("60 mm")),
    Sketcher.Constraint("DistanceY", 0, 2, 0, 1, Q("80 mm")),
])
sketch20.setExpression("Constraints[9]", "Params.sketch20_width")
sketch20.setExpression("Constraints[10]", "Params.sketch20_height")
pad20 = body3.newObject("PartDesign::Pad", "Pad019")
pad20.Profile = sketch20
pad20.setExpression("Length", "Params.pad20_length")
pad20.Reversed = True

# Sketch on XY plane
sketch21 = body3.newObject("Sketcher::SketchObject", "Sketch020")
sketch21.AttachmentSupport = (doc.getObject("XY_Plane002"), [""])
sketch21.MapMode = "FlatFace"
sketch21.AttachmentOffset = App.Placement(Vector(0, 0, -91), App.Rotation())
sketch21.addGeometry(Part.Circle(Vector(-25, 35, 0), Vector(0, 0, 1), 3), False)
sketch21.addConstraint([
    Sketcher.Constraint("Diameter", 0, Q("6 mm")),
    Sketcher.Constraint("DistanceX", 0, 3, -1, 1, Q("25 mm")),
    Sketcher.Constraint("DistanceY", -1, 1, 0, 3, Q("35 mm")),
])
sketch21.setExpression("Constraints[0]", "Params.sketch21_diameter")
pad21 = body3.newObject("PartDesign::Pad", "Pad020")
pad21.Profile = sketch21
pad21.setExpression("Length", "Params.pad21_length")
pad21.Reversed = True
doc.recompute()

thickness2 = body3.newObject("PartDesign::Thickness", "Thickness001")
thickness2.Base = (pad21, faces_at(pad21, [(-25, 35, -101)]))
thickness2.setExpression("Value", "Params.thickness2_wall")
thickness2.Reversed = True
thickness2.Join = "Intersection"

doc.recompute()
